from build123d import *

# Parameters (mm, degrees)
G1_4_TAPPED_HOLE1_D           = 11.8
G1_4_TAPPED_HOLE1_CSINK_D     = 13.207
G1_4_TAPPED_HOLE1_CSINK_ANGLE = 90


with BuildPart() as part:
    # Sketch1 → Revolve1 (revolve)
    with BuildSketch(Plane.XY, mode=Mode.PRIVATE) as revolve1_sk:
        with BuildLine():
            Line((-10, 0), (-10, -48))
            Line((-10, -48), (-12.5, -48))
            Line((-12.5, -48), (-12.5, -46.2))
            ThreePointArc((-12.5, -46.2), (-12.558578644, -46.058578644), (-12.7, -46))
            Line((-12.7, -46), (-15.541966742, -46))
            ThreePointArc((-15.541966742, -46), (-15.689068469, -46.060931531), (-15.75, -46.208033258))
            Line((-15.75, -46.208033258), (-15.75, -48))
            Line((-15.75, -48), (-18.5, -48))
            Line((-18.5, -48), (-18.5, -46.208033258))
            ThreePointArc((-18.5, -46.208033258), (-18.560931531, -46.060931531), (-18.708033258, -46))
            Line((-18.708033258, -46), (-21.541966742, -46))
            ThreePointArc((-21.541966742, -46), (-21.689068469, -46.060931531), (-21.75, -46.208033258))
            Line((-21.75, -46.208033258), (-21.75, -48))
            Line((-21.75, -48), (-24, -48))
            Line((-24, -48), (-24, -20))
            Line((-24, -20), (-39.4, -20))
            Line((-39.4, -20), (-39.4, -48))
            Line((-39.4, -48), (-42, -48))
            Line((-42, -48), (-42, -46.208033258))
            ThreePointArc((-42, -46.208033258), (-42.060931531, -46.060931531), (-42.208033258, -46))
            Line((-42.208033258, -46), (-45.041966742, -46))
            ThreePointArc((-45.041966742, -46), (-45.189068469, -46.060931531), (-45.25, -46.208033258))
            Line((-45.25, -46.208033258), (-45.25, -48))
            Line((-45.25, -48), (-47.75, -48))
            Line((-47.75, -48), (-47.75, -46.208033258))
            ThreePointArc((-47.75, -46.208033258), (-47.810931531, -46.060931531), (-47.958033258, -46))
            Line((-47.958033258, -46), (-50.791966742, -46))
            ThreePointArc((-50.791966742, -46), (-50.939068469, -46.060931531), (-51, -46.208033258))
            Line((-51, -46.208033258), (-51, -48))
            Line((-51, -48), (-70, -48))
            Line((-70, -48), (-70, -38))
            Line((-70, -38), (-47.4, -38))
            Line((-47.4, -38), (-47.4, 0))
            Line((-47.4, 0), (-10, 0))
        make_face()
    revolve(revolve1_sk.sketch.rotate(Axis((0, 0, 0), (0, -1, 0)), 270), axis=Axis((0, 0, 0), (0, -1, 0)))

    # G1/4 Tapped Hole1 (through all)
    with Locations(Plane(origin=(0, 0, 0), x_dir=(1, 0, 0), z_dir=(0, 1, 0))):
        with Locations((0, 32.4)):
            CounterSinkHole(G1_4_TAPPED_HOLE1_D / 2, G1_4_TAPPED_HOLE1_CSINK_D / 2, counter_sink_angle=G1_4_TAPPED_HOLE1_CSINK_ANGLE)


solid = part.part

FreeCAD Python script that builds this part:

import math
import FreeCAD as App
import Part
import Sketcher

doc = App.newDocument("Part")
body = doc.addObject("PartDesign::Body", "Body")

sketch1 = doc.addObject("Sketcher::SketchObject", "Sketch")
body.addObject(sketch1)
sketch1.AttachmentSupport = (doc.XY_Plane, [""])
sketch1.MapMode = "FlatFace"
sketch1.addGeometry([
    Part.LineSegment(App.Vector(-10, -48, 0), App.Vector(-10, 0, 0)),
    Part.LineSegment(App.Vector(-10, 0, 0), App.Vector(-47.4, 0, 0)),
    Part.LineSegment(App.Vector(-47.4, 0, 0), App.Vector(-47.4, -38, 0)),
    Part.LineSegment(App.Vector(-47.4, -38, 0), App.Vector(-70, -38, 0)),
    Part.LineSegment(App.Vector(-70, -38, 0), App.Vector(-70, -48, 0)),
    Part.LineSegment(App.Vector(-70, -48, 0), App.Vector(-51, -48, 0)),
    Part.LineSegment(App.Vector(-51, -48, 0), App.Vector(-51, -46.21, 0)),
    Part.ArcOfCircle(Part.Circle(App.Vector(-50.79, -46.21, 0), App.Vector(0, 0, 1), 0.21), math.radians(90), math.radians(180)),
    Part.LineSegment(App.Vector(-50.79, -46, 0), App.Vector(-47.96, -46, 0)),
    Part.ArcOfCircle(Part.Circle(App.Vector(-47.96, -46.21, 0), App.Vector(0, 0, 1), 0.21), math.radians(0), math.radians(90)),
    Part.LineSegment(App.Vector(-47.75, -46.21, 0), App.Vector(-47.75, -48, 0)),
    Part.LineSegment(App.Vector(-47.75, -48, 0), App.Vector(-45.25, -48, 0)),
    Part.LineSegment(App.Vector(-45.25, -48, 0), App.Vector(-45.25, -46.21, 0)),
    Part.ArcOfCircle(Part.Circle(App.Vector(-45.04, -46.21, 0), App.Vector(0, 0, 1), 0.21), math.radians(90), math.radians(180)),
    Part.LineSegment(App.Vector(-45.04, -46, 0), App.Vector(-42.21, -46, 0)),
    Part.ArcOfCircle(Part.Circle(App.Vector(-42.21, -46.21, 0), App.Vector(0, 0, 1), 0.21), math.radians(0), math.radians(90)),
    Part.LineSegment(App.Vector(-42, -46.21, 0), App.Vector(-42, -48, 0)),
    Part.LineSegment(App.Vector(-42, -48, 0), App.Vector(-39.4, -48, 0)),
    Part.LineSegment(App.Vector(-39.4, -48, 0), App.Vector(-39.4, -20, 0)),
    Part.LineSegment(App.Vector(-39.4, -20, 0), App.Vector(-24, -20, 0)),
    Part.LineSegment(App.Vector(-24, -20, 0), App.Vector(-24, -48, 0)),
    Part.LineSegment(App.Vector(-24, -48, 0), App.Vector(-21.75, -48, 0)),
    Part.LineSegment(App.Vector(-21.75, -48, 0), App.Vector(-21.75, -46.21, 0)),
    Part.ArcOfCircle(Part.Circle(App.Vector(-21.54, -46.21, 0), App.Vector(0, 0, 1), 0.21), math.radians(90), math.radians(180)),
    Part.LineSegment(App.Vector(-21.54, -46, 0), App.Vector(-18.71, -46, 0)),
    Part.ArcOfCircle(Part.Circle(App.Vector(-18.71, -46.21, 0), App.Vector(0, 0, 1), 0.21), math.radians(0), math.radians(90)),
    Part.LineSegment(App.Vector(-18.5, -46.21, 0), App.Vector(-18.5, -48, 0)),
    Part.LineSegment(App.Vector(-18.5, -48, 0), App.Vector(-15.75, -48, 0)),
    Part.LineSegment(App.Vector(-15.75, -48, 0), App.Vector(-15.75, -46.21, 0)),
    Part.ArcOfCircle(Part.Circle(App.Vector(-15.54, -46.21, 0), App.Vector(0, 0, 1), 0.21), math.radians(90), math.radians(180)),
    Part.LineSegment(App.Vector(-15.54, -46, 0), App.Vector(-12.7, -46, 0)),
    Part.ArcOfCircle(Part.Circle(App.Vector(-12.7, -46.2, 0), App.Vector(0, 0, 1), 0.2), math.radians(0), math.radians(90)),
    Part.LineSegment(App.Vector(-12.5, -46.2, 0), App.Vector(-12.5, -48, 0)),
    Part.LineSegment(App.Vector(-12.5, -48, 0), App.Vector(-10, -48, 0)),
], False)
sketch1.addConstraint([
    Sketcher.Constraint("Coincident", 0, 2, 1, 1),
    Sketcher.Constraint("Coincident", 1, 2, 2, 1),
    Sketcher.Constraint("Coincident", 2, 2, 3, 1),
    Sketcher.Constraint("Coincident", 3, 2, 4, 1),
    Sketcher.Constraint("Coincident", 4, 2, 5, 1),
    Sketcher.Constraint("Coincident", 5, 2, 6, 1),
    Sketcher.Constraint("Tangent", 6, 2, 7, 2),
    Sketcher.Constraint("Tangent", 7, 1, 8, 1),
    Sketcher.Constraint("Tangent", 8, 2, 9, 2),
    Sketcher.Constraint("Tangent", 9, 1, 10, 1),
    Sketcher.Constraint("Coincident", 10, 2, 11, 1),
    Sketcher.Constraint("Coincident", 11, 2, 12, 1),
    Sketcher.Constraint("Tangent", 12, 2, 13, 2),
    Sketcher.Constraint("Tangent", 13, 1, 14, 1),
    Sketcher.Constraint("Tangent", 14, 2, 15, 2),
    Sketcher.Constraint("Tangent", 15, 1, 16, 1),
    Sketcher.Constraint("Coincident", 16, 2, 17, 1),
    Sketcher.Constraint("Coincident", 17, 2, 18, 1),
    Sketcher.Constraint("Coincident", 18, 2, 19, 1),
    Sketcher.Constraint("Coincident", 19, 2, 20, 1),
    Sketcher.Constraint("Coincident", 20, 2, 21, 1),
    Sketcher.Constraint("Coincident", 21, 2, 22, 1),
    Sketcher.Constraint("Tangent", 22, 2, 23, 2),
    Sketcher.Constraint("Tangent", 23, 1, 24, 1),
    Sketcher.Constraint("Tangent", 24, 2, 25, 2),
    Sketcher.Constraint("Tangent", 25, 1, 26, 1),
    Sketcher.Constraint("Coincident", 26, 2, 27, 1),
    Sketcher.Constraint("Coincident", 27, 2, 28, 1),
    Sketcher.Constraint("Tangent", 28, 2, 29, 2),
    Sketcher.Constraint("Tangent", 29, 1, 30, 1),
    Sketcher.Constraint("Tangent", 30, 2, 31, 2),
    Sketcher.Constraint("Tangent", 31, 1, 32, 1),
    Sketcher.Constraint("Coincident", 32, 2, 33, 1),
    Sketcher.Constraint("Coincident", 33, 2, 0, 1),
    Sketcher.Constraint("Vertical", 0),
    Sketcher.Constraint("Horizontal", 1),
    Sketcher.Constraint("Vertical", 2),
    Sketcher.Constraint("Horizontal", 3),
    Sketcher.Constraint("Vertical", 4),
    Sketcher.Constraint("Horizontal", 5),
    Sketcher.Constraint("Vertical", 6),
    Sketcher.Constraint("Horizontal", 8),
    Sketcher.Constraint("Vertical", 10),
    Sketcher.Constraint("Horizontal", 11),
    Sketcher.Constraint("Vertical", 12),
    Sketcher.Constraint("Horizontal", 14),
    Sketcher.Constraint("Vertical", 16),
    Sketcher.Constraint("Horizontal", 17),
    Sketcher.Constraint("Vertical", 18),
    Sketcher.Constraint("Horizontal", 19),
    Sketcher.Constraint("Vertical", 20),
    Sketcher.Constraint("Horizontal", 21),
    Sketcher.Constraint("Vertical", 22),
    Sketcher.Constraint("Horizontal", 24),
    Sketcher.Constraint("Vertical", 26),
    Sketcher.Constraint("Horizontal", 27),
    Sketcher.Constraint("Vertical", 28),
    Sketcher.Constraint("Horizontal", 30),
    Sketcher.Constraint("Vertical", 32),
    Sketcher.Constraint("Horizontal", 33),
    Sketcher.Constraint("Equal", 7, 9),
    Sketcher.Constraint("Equal", 9, 13),
    Sketcher.Constraint("Equal", 13, 15),
    Sketcher.Constraint("Equal", 15, 23),
    Sketcher.Constraint("Equal", 23, 25),
    Sketcher.Constraint("Equal", 25, 29),
    Sketcher.Constraint("PointOnObject", 0, 2, -1),
    Sketcher.Constraint("Horizontal", 9, 3, 13, 3),
    Sketcher.Constraint("Horizontal", 15, 3, 23, 3),
    Sketcher.Constraint("Horizontal", 25, 3, 29, 3),
    Sketcher.Constraint("Horizontal", 5, 2, 10, 2),
    Sketcher.Constraint("Horizontal", 11, 2, 16, 2),
    Sketcher.Constraint("Horizontal", 17, 2, 20, 2),
    Sketcher.Constraint("Horizontal", 21, 2, 26, 2),
    Sketcher.Constraint("Horizontal", 27, 2, 32, 2),
    Sketcher.Constraint("Equal", 8, 14),
    Sketcher.Constraint("Equal", 14, 24),
    Sketcher.Constraint("Equal", 11, 33),
    Sketcher.Constraint("Radius", 31, 0.2),
    Sketcher.Constraint("DistanceX", 5, 1, 5, 2, 19.0),
    Sketcher.Constraint("DistanceY", 0, 1, 0, 2, 48.0),
    Sketcher.Constraint("DistanceY", 2, 2, 2, 1, 38.0),
    Sketcher.Constraint("DistanceY", 18, 1, 18, 2, 28.0),
    Sketcher.Constraint("DistanceX", 1, 2, 1, 1, 37.4),
    Sketcher.Constraint("DistanceX", 3, 2, 3, 1, 22.6),
    Sketcher.Constraint("DistanceX", 11, 1, 11, 2, 2.5),
    Sketcher.Constraint("DistanceX", 17, 1, 17, 2, 2.6),
    Sketcher.Constraint("DistanceX", 19, 1, 19, 2, 15.4),
    Sketcher.Constraint("DistanceY", 32, 2, 32, 1, 1.8),
    Sketcher.Constraint("DistanceX", 0, 2, -1, 1, 10.0),
    Sketcher.Constraint("DistanceX", 15, 1, -1, 1, 42.0),
    Sketcher.Constraint("DistanceX", 23, 3, 29, 3, 6.0),
    Sketcher.Constraint("DistanceX", 21, 1, 21, 2, 2.25),
    Sketcher.Constraint("Radius", 7, 0.208033),
])
revolution = doc.addObject("PartDesign::Revolution", "Revolution")
body.addObject(revolution)
revolution.Profile = sketch1
revolution.ReferenceAxis = (sketch1, ["V_Axis"])
revolution.Angle = 360

sketch2 = doc.addObject("Sketcher::SketchObject", "Sketch001")
body.addObject(sketch2)
sketch2.AttachmentSupport = (doc.XZ_Plane, [""])
sketch2.MapMode = "FlatFace"
sketch2.addGeometry(Part.Circle(App.Vector(0, -32, 0), App.Vector(0, 0, 1), 6), False)
sketch2.addConstraint([
    Sketcher.Constraint("PointOnObject", 0, 3, -2),
    Sketcher.Constraint("Diameter", 0, 11.8),
    Sketcher.Constraint("DistanceY", 0, 3, -1, 1, 32.4),
])
doc.recompute()
hole = doc.addObject("PartDesign::Hole", "Hole")
body.addObject(hole)
hole.Profile = sketch2
hole.ThreadType = "None"
hole.Diameter = 11.8
hole.DepthType = "ThroughAll"
hole.HoleCutType = "Countersink"
hole.HoleCutDiameter = 13.207
hole.HoleCutCountersinkAngle = 90
hole.Reversed = True

doc.recompute()
